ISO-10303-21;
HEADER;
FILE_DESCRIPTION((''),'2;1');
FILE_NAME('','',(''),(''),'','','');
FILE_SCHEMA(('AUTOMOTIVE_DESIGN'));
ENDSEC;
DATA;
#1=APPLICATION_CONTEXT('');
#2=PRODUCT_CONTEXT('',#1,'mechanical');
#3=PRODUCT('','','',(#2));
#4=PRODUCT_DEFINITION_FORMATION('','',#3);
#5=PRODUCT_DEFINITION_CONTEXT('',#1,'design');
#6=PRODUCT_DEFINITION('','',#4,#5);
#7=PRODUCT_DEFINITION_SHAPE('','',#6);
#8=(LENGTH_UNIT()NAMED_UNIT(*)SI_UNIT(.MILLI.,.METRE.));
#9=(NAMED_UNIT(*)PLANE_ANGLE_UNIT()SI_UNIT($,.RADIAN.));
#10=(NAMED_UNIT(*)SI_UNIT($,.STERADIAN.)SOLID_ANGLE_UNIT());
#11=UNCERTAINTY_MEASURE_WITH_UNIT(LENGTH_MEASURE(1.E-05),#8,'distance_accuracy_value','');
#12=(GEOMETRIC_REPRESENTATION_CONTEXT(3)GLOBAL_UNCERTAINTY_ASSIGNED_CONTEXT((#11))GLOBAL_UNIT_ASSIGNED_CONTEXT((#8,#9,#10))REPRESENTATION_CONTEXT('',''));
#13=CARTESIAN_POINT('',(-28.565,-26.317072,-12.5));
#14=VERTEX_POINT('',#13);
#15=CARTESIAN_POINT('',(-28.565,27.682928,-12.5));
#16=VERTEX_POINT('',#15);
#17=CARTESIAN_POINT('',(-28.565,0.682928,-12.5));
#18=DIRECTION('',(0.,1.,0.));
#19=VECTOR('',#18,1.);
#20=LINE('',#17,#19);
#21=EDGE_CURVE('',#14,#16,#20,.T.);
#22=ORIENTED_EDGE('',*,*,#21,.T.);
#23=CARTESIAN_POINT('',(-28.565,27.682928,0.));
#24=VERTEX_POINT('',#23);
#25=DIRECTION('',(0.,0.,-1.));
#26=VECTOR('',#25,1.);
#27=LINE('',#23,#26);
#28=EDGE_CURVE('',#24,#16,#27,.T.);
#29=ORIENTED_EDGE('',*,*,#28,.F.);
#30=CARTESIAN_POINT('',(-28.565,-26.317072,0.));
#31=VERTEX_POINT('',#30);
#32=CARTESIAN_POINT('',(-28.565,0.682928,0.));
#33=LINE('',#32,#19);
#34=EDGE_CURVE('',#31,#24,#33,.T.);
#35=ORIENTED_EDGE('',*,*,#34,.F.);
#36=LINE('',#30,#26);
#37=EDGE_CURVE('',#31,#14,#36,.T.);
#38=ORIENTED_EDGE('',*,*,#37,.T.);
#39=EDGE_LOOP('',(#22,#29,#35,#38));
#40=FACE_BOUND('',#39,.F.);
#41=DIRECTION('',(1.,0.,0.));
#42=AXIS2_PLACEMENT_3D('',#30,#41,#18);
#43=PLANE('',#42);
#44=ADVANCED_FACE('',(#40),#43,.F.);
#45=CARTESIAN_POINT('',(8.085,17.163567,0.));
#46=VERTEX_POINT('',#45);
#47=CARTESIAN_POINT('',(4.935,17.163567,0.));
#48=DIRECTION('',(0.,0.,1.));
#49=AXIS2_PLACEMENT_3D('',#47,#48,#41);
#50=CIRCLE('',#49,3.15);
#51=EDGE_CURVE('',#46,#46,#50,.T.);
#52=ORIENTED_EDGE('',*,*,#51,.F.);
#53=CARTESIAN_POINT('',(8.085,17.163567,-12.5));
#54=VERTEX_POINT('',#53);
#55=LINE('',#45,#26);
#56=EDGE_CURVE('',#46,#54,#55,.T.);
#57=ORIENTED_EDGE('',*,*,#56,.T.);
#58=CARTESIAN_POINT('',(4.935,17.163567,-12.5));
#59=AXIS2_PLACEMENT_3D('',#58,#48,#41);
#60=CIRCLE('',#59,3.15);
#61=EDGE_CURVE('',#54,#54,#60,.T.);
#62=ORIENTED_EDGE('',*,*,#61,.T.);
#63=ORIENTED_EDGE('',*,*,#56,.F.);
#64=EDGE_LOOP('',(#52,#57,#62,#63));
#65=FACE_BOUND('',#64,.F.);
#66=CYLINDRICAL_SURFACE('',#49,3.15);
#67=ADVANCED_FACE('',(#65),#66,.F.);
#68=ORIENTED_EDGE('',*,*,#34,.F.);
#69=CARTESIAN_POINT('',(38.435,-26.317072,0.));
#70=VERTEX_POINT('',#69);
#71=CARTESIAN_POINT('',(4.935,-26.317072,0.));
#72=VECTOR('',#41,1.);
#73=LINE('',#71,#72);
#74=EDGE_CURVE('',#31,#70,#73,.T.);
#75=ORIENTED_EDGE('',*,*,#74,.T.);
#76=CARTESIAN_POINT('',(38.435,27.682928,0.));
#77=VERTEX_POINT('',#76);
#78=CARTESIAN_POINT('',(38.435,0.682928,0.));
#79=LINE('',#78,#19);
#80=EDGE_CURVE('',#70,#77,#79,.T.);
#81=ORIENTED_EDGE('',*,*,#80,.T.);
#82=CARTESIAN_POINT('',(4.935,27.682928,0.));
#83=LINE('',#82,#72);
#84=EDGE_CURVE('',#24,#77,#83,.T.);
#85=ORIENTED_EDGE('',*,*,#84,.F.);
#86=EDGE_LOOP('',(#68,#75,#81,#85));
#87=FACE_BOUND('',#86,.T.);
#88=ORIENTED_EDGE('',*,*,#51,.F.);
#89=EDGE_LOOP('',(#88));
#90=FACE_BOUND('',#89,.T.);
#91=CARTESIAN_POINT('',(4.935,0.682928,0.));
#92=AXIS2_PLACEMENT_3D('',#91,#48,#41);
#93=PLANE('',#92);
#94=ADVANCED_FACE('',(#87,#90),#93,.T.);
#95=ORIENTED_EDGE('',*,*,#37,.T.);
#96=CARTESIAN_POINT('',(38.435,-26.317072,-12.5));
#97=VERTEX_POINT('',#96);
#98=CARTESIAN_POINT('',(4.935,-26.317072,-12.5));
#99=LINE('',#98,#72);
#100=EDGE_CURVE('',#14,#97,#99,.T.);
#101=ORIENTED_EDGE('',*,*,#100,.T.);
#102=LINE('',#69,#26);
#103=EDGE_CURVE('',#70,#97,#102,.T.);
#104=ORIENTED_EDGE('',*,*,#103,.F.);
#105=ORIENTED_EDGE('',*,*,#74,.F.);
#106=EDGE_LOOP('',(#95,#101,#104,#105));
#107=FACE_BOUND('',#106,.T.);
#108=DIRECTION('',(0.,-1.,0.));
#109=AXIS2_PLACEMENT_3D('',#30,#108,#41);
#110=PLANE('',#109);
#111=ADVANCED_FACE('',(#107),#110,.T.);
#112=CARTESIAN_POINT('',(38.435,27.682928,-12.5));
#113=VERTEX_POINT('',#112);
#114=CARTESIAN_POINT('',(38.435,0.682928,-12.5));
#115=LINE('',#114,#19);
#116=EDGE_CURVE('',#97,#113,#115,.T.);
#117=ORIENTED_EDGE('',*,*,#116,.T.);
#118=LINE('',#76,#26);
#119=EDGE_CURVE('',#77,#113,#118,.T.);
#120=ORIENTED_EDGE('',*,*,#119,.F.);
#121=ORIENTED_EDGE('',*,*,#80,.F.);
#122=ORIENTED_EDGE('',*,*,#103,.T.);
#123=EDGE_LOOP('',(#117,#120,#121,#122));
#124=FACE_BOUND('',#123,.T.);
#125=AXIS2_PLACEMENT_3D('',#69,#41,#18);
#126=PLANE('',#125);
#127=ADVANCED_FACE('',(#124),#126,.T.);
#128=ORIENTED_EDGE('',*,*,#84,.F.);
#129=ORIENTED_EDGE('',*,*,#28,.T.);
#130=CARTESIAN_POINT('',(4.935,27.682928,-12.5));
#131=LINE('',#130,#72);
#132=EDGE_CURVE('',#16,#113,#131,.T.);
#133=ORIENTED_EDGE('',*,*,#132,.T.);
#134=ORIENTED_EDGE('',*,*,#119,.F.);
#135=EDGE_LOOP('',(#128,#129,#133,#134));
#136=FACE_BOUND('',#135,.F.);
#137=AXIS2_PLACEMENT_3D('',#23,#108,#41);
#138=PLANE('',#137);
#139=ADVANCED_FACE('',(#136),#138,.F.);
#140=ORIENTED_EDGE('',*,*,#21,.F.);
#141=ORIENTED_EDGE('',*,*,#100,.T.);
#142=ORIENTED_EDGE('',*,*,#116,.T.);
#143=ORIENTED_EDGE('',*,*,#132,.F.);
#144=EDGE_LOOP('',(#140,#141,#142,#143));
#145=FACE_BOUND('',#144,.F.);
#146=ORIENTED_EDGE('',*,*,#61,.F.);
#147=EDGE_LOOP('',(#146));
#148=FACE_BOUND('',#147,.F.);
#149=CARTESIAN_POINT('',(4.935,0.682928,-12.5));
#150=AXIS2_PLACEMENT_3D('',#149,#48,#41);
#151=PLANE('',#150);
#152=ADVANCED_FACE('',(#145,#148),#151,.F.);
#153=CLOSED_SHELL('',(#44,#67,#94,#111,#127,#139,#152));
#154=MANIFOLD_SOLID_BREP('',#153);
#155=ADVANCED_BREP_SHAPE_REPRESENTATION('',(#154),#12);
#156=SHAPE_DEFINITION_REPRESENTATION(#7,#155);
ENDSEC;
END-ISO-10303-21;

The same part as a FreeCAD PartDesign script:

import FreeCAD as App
import Part
import Sketcher
from FreeCAD import Vector

doc = App.newDocument("Part")
body = doc.addObject("PartDesign::Body", "Body")

# Sketch on XY plane
sketch1 = body.newObject("Sketcher::SketchObject", "Sketch")
sketch1.AttachmentSupport = (doc.getObject("XY_Plane"), [""])
sketch1.MapMode = "FlatFace"
sketch1.addGeometry(Part.LineSegment(Vector(-28.6, 27.7, 0), Vector(-28.6, -26.3, 0)), False)
sketch1.addGeometry(Part.LineSegment(Vector(-28.6, -26.3, 0), Vector(38.4, -26.3, 0)), False)
sketch1.addGeometry(Part.LineSegment(Vector(38.4, -26.3, 0), Vector(38.4, 27.7, 0)), False)
sketch1.addGeometry(Part.LineSegment(Vector(38.4, 27.7, 0), Vector(-28.6, 27.7, 0)), False)
sketch1.addGeometry(Part.Circle(Vector(4.9, 17.2, 0), Vector(0, 0, 1), 3.1), False)
sketch1.addConstraint(Sketcher.Constraint("Coincident", 0, 2, 1, 1))
sketch1.addConstraint(Sketcher.Constraint("Coincident", 1, 2, 2, 1))
sketch1.addConstraint(Sketcher.Constraint("Coincident", 2, 2, 3, 1))
sketch1.addConstraint(Sketcher.Constraint("Coincident", 3, 2, 0, 1))
sketch1.addConstraint(Sketcher.Constraint("Vertical", 0))
sketch1.addConstraint(Sketcher.Constraint("Horizontal", 1))
sketch1.addConstraint(Sketcher.Constraint("Vertical", 2))
sketch1.addConstraint(Sketcher.Constraint("Horizontal", 3))
sketch1.addConstraint(Sketcher.Constraint("Diameter", 4, 6.3))
sketch1.addConstraint(Sketcher.Constraint("DistanceX", 1, 1, 1, 2, 67.0))
sketch1.addConstraint(Sketcher.Constraint("DistanceY", 0, 2, 0, 1, 54.0))
sketch1.addConstraint(Sketcher.Constraint("DistanceX", 0, 2, 4, 3, 33.5))
sketch1.addConstraint(Sketcher.Constraint("DistanceX", -1, 1, 4, 3, 4.935))
sketch1.addConstraint(Sketcher.Constraint("DistanceY", 0, 2, -1, 1, 26.317072))
sketch1.addConstraint(Sketcher.Constraint("DistanceY", 0, 2, 4, 3, 43.480639))
pad1 = body.newObject("PartDesign::Pad", "Pad")
pad1.Profile = sketch1
pad1.Length = 12.5
pad1.Reversed = True

doc.recompute()
